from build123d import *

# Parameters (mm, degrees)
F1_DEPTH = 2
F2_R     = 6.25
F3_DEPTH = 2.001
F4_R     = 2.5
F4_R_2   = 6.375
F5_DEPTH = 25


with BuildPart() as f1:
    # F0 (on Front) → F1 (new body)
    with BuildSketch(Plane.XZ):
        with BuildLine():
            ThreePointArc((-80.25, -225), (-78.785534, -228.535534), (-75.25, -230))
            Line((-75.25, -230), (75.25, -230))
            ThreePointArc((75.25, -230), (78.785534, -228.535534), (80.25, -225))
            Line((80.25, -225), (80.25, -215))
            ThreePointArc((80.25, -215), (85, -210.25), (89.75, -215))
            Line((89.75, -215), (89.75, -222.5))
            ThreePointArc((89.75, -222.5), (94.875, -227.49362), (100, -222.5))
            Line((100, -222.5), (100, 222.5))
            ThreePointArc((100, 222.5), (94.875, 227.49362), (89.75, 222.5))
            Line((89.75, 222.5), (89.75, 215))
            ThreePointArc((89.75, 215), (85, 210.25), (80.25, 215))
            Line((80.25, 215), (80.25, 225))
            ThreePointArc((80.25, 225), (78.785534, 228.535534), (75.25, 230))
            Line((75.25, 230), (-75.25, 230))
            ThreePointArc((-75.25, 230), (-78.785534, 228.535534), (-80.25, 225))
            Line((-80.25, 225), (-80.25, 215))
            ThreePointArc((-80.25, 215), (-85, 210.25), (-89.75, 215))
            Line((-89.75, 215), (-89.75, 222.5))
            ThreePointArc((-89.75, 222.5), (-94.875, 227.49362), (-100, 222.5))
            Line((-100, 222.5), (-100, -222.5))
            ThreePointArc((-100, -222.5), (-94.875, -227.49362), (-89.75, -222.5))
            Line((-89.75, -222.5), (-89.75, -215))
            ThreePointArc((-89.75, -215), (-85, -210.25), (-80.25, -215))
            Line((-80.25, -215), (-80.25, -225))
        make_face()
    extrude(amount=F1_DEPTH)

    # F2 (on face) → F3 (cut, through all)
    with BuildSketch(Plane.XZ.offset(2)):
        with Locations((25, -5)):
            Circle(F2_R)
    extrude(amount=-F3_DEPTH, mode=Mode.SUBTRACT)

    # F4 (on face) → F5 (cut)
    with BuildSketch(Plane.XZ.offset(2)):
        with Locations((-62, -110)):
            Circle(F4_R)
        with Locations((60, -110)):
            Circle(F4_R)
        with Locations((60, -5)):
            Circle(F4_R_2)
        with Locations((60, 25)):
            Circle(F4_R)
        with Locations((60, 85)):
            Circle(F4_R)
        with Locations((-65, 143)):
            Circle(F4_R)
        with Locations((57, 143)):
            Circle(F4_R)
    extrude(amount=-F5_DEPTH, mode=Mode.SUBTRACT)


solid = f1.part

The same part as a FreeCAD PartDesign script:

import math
import FreeCAD as App
import Part
import Sketcher
Q = App.Units.Quantity

doc = App.newDocument("Part")
body = doc.addObject("PartDesign::Body", "Body")

sketch1 = body.newObject("Sketcher::SketchObject", "Sketch")
sketch1.AttachmentSupport = (doc.getObject("XZ_Plane"), [""])
sketch1.MapMode = "FlatFace"
sketch1.addGeometry([
    Part.ArcOfCircle(Part.Circle(App.Vector(-75.3, -225, 0), App.Vector(0, 0, 1), 5), math.radians(180), math.radians(270)),
    Part.LineSegment(App.Vector(-75.2, -230, 0), App.Vector(75.2, -230, 0)),
    Part.ArcOfCircle(Part.Circle(App.Vector(75.3, -225, 0), App.Vector(0, 0, 1), 5), math.radians(-90), math.radians(0)),
    Part.LineSegment(App.Vector(80.2, -225, 0), App.Vector(80.2, -215, 0)),
    Part.ArcOfCircle(Part.Circle(App.Vector(85, -215, 0), App.Vector(0, 0, 1), 4.8), math.radians(0), math.radians(180)),
    Part.LineSegment(App.Vector(89.8, -215, 0), App.Vector(89.8, -222.5, 0)),
    Part.ArcOfCircle(Part.Circle(App.Vector(94.9, -222.4, 0), App.Vector(0, 0, 1), 5.1), math.radians(-179), math.radians(-1)),
    Part.LineSegment(App.Vector(100, -222.5, 0), App.Vector(100, 222.5, 0)),
    Part.ArcOfCircle(Part.Circle(App.Vector(94.9, 222.4, 0), App.Vector(0, 0, 1), 5.1), math.radians(1), math.radians(179)),
    Part.LineSegment(App.Vector(89.8, 222.5, 0), App.Vector(89.8, 215, 0)),
    Part.ArcOfCircle(Part.Circle(App.Vector(85, 215, 0), App.Vector(0, 0, 1), 4.8), math.radians(180), math.radians(360)),
    Part.LineSegment(App.Vector(80.2, 215, 0), App.Vector(80.2, 225, 0)),
    Part.ArcOfCircle(Part.Circle(App.Vector(75.3, 225, 0), App.Vector(0, 0, 1), 5), math.radians(0), math.radians(90)),
    Part.LineSegment(App.Vector(75.2, 230, 0), App.Vector(-75.2, 230, 0)),
    Part.ArcOfCircle(Part.Circle(App.Vector(-75.3, 225, 0), App.Vector(0, 0, 1), 5), math.radians(90), math.radians(180)),
    Part.LineSegment(App.Vector(-80.2, 225, 0), App.Vector(-80.2, 215, 0)),
    Part.ArcOfCircle(Part.Circle(App.Vector(-85, 215, 0), App.Vector(0, 0, 1), 4.8), math.radians(180), math.radians(360)),
    Part.LineSegment(App.Vector(-89.8, 215, 0), App.Vector(-89.8, 222.5, 0)),
    Part.ArcOfCircle(Part.Circle(App.Vector(-94.9, 222.4, 0), App.Vector(0, 0, 1), 5.1), math.radians(1), math.radians(179)),
    Part.LineSegment(App.Vector(-100, 222.5, 0), App.Vector(-100, -222.5, 0)),
    Part.ArcOfCircle(Part.Circle(App.Vector(-94.9, -222.4, 0), App.Vector(0, 0, 1), 5.1), math.radians(-179), math.radians(-1)),
    Part.LineSegment(App.Vector(-89.8, -222.5, 0), App.Vector(-89.8, -215, 0)),
    Part.ArcOfCircle(Part.Circle(App.Vector(-85, -215, 0), App.Vector(0, 0, 1), 4.8), math.radians(0), math.radians(180)),
    Part.LineSegment(App.Vector(-80.2, -215, 0), App.Vector(-80.2, -225, 0)),
], False)
sketch1.addConstraint([
    Sketcher.Constraint("Tangent", 0, 2, 1, 1),
    Sketcher.Constraint("Tangent", 1, 2, 2, 1),
    Sketcher.Constraint("Tangent", 2, 2, 3, 1),
    Sketcher.Constraint("Tangent", 3, 2, 4, 2),
    Sketcher.Constraint("Tangent", 4, 1, 5, 1),
    Sketcher.Constraint("Coincident", 5, 2, 6, 1),
    Sketcher.Constraint("Coincident", 6, 2, 7, 1),
    Sketcher.Constraint("Coincident", 7, 2, 8, 1),
    Sketcher.Constraint("Coincident", 8, 2, 9, 1),
    Sketcher.Constraint("Tangent", 9, 2, 10, 2),
    Sketcher.Constraint("Tangent", 10, 1, 11, 1),
    Sketcher.Constraint("Tangent", 11, 2, 12, 1),
    Sketcher.Constraint("Tangent", 12, 2, 13, 1),
    Sketcher.Constraint("Tangent", 13, 2, 14, 1),
    Sketcher.Constraint("Tangent", 14, 2, 15, 1),
    Sketcher.Constraint("Tangent", 15, 2, 16, 2),
    Sketcher.Constraint("Tangent", 16, 1, 17, 1),
    Sketcher.Constraint("Coincident", 17, 2, 18, 1),
    Sketcher.Constraint("Coincident", 18, 2, 19, 1),
    Sketcher.Constraint("Coincident", 19, 2, 20, 1),
    Sketcher.Constraint("Coincident", 20, 2, 21, 1),
    Sketcher.Constraint("Tangent", 21, 2, 22, 2),
    Sketcher.Constraint("Tangent", 22, 1, 23, 1),
    Sketcher.Constraint("Tangent", 23, 2, 0, 1),
    Sketcher.Constraint("Horizontal", 1),
    Sketcher.Constraint("Vertical", 3),
    Sketcher.Constraint("Vertical", 5),
    Sketcher.Constraint("Vertical", 7),
    Sketcher.Constraint("Vertical", 9),
    Sketcher.Constraint("Vertical", 11),
    Sketcher.Constraint("Horizontal", 13),
    Sketcher.Constraint("Vertical", 15),
    Sketcher.Constraint("Vertical", 17),
    Sketcher.Constraint("Vertical", 19),
    Sketcher.Constraint("Vertical", 21),
    Sketcher.Constraint("Vertical", 23),
    Sketcher.Constraint("Equal", 0, 2),
    Sketcher.Constraint("Equal", 6, 8),
    Sketcher.Constraint("Equal", 4, 10),
    Sketcher.Constraint("Equal", 2, 12),
    Sketcher.Constraint("Equal", 12, 14),
    Sketcher.Constraint("Equal", 10, 16),
    Sketcher.Constraint("Equal", 8, 18),
    Sketcher.Constraint("Equal", 18, 20),
    Sketcher.Constraint("Equal", 16, 22),
    Sketcher.Constraint("Symmetric", 0, 3, 12, 3, -1, 1),
    Sketcher.Constraint("Symmetric", 4, 3, 16, 3, -1, 1),
    Sketcher.Constraint("Symmetric", 6, 3, 18, 3, -1, 1),
    Sketcher.Constraint("Symmetric", 8, 3, 20, 3, -1, 1),
    Sketcher.Constraint("Symmetric", 10, 3, 16, 3, -2),
    Sketcher.Constraint("Symmetric", 8, 3, 18, 3, -2),
    Sketcher.Constraint("Horizontal", 4, 3, 22, 3),
    Sketcher.Constraint("Horizontal", 5, 2, 6, 2),
    Sketcher.Constraint("Horizontal", 17, 2, 18, 2),
    Sketcher.Constraint("Radius", 0, Q("5 mm")),
    Sketcher.Constraint("DistanceY", 3, 1, 3, 2, Q("10 mm")),
    Sketcher.Constraint("DistanceY", 7, 1, 7, 2, Q("445 mm")),
    Sketcher.Constraint("Radius", 4, Q("4.75 mm")),
    Sketcher.Constraint("DistanceX", 1, 1, 1, 2, Q("150.5 mm")),
    Sketcher.Constraint("DistanceY", 5, 2, 5, 1, Q("7.5 mm")),
    Sketcher.Constraint("DistanceX", -1, 1, 6, 2, Q("100 mm")),
    Sketcher.Constraint("Radius", 6, Q("5.126728 mm")),
])
pad1 = body.newObject("PartDesign::Pad", "Pad")
pad1.Profile = sketch1
pad1.Length = 2

sketch2 = body.newObject("Sketcher::SketchObject", "Sketch001")
sketch2.AttachmentSupport = (doc.getObject("XZ_Plane"), [""])
sketch2.MapMode = "FlatFace"
sketch2.AttachmentOffset = App.Placement(App.Vector(0, 0, 2), App.Rotation())
sketch2.addGeometry(Part.Circle(App.Vector(25, -5, 0), App.Vector(0, 0, 1), 6), False)
sketch2.addConstraint([
    Sketcher.Constraint("Diameter", 0, Q("12.5 mm")),
    Sketcher.Constraint("DistanceX", -1, 1, 0, 3, Q("25 mm")),
    Sketcher.Constraint("DistanceY", 0, 3, -1, 1, Q("5 mm")),
])
pocket1 = body.newObject("PartDesign::Pocket", "Pocket")
pocket1.Profile = sketch2
pocket1.Type = "ThroughAll"

sketch3 = body.newObject("Sketcher::SketchObject", "Sketch002")
sketch3.AttachmentSupport = (doc.getObject("XZ_Plane"), [""])
sketch3.MapMode = "FlatFace"
sketch3.AttachmentOffset = App.Placement(App.Vector(0, 0, 2), App.Rotation())
sketch3.addGeometry([
    Part.Circle(App.Vector(-62, -110, 0), App.Vector(0, 0, 1), 2.5),
    Part.Circle(App.Vector(60, -110, 0), App.Vector(0, 0, 1), 2.5),
    Part.Circle(App.Vector(60, -5, 0), App.Vector(0, 0, 1), 6.4),
    Part.Circle(App.Vector(60, 25, 0), App.Vector(0, 0, 1), 2.5),
    Part.Circle(App.Vector(60, 85, 0), App.Vector(0, 0, 1), 2.5),
    Part.Circle(App.Vector(-65, 143, 0), App.Vector(0, 0, 1), 2.5),
    Part.Circle(App.Vector(57, 143, 0), App.Vector(0, 0, 1), 2.5),
], False)
sketch3.addConstraint([
    Sketcher.Constraint("Equal", 0, 1),
    Sketcher.Constraint("Equal", 1, 3),
    Sketcher.Constraint("Equal", 3, 4),
    Sketcher.Constraint("Equal", 4, 5),
    Sketcher.Constraint("Equal", 5, 6),
    Sketcher.Constraint("Horizontal", 0, 3, 1, 3),
    Sketcher.Constraint("Horizontal", 5, 3, 6, 3),
    Sketcher.Constraint("Vertical", 1, 3, 2, 3),
    Sketcher.Constraint("Vertical", 2, 3, 3, 3),
    Sketcher.Constraint("Vertical", 3, 3, 4, 3),
    Sketcher.Constraint("Diameter", 0, Q("5 mm")),
    Sketcher.Constraint("Diameter", 2, Q("12.75 mm")),
    Sketcher.Constraint("DistanceX", 0, 3, -1, 1, Q("62 mm")),
    Sketcher.Constraint("DistanceY", 0, 3, -1, 1, Q("110 mm")),
    Sketcher.Constraint("DistanceX", -1, 1, 1, 3, Q("60 mm")),
    Sketcher.Constraint("DistanceY", 2, 3, -1, 1, Q("5 mm")),
    Sketcher.Constraint("DistanceY", -1, 1, 3, 3, Q("25 mm")),
    Sketcher.Constraint("DistanceY", -1, 1, 4, 3, Q("85 mm")),
    Sketcher.Constraint("DistanceX", 5, 3, -1, 1, Q("65 mm")),
    Sketcher.Constraint("DistanceY", -1, 1, 5, 3, Q("143 mm")),
    Sketcher.Constraint("DistanceX", -1, 1, 6, 3, Q("57 mm")),
])
pocket2 = body.newObject("PartDesign::Pocket", "Pocket001")
pocket2.Profile = sketch3
pocket2.Length = 25

doc.recompute()
